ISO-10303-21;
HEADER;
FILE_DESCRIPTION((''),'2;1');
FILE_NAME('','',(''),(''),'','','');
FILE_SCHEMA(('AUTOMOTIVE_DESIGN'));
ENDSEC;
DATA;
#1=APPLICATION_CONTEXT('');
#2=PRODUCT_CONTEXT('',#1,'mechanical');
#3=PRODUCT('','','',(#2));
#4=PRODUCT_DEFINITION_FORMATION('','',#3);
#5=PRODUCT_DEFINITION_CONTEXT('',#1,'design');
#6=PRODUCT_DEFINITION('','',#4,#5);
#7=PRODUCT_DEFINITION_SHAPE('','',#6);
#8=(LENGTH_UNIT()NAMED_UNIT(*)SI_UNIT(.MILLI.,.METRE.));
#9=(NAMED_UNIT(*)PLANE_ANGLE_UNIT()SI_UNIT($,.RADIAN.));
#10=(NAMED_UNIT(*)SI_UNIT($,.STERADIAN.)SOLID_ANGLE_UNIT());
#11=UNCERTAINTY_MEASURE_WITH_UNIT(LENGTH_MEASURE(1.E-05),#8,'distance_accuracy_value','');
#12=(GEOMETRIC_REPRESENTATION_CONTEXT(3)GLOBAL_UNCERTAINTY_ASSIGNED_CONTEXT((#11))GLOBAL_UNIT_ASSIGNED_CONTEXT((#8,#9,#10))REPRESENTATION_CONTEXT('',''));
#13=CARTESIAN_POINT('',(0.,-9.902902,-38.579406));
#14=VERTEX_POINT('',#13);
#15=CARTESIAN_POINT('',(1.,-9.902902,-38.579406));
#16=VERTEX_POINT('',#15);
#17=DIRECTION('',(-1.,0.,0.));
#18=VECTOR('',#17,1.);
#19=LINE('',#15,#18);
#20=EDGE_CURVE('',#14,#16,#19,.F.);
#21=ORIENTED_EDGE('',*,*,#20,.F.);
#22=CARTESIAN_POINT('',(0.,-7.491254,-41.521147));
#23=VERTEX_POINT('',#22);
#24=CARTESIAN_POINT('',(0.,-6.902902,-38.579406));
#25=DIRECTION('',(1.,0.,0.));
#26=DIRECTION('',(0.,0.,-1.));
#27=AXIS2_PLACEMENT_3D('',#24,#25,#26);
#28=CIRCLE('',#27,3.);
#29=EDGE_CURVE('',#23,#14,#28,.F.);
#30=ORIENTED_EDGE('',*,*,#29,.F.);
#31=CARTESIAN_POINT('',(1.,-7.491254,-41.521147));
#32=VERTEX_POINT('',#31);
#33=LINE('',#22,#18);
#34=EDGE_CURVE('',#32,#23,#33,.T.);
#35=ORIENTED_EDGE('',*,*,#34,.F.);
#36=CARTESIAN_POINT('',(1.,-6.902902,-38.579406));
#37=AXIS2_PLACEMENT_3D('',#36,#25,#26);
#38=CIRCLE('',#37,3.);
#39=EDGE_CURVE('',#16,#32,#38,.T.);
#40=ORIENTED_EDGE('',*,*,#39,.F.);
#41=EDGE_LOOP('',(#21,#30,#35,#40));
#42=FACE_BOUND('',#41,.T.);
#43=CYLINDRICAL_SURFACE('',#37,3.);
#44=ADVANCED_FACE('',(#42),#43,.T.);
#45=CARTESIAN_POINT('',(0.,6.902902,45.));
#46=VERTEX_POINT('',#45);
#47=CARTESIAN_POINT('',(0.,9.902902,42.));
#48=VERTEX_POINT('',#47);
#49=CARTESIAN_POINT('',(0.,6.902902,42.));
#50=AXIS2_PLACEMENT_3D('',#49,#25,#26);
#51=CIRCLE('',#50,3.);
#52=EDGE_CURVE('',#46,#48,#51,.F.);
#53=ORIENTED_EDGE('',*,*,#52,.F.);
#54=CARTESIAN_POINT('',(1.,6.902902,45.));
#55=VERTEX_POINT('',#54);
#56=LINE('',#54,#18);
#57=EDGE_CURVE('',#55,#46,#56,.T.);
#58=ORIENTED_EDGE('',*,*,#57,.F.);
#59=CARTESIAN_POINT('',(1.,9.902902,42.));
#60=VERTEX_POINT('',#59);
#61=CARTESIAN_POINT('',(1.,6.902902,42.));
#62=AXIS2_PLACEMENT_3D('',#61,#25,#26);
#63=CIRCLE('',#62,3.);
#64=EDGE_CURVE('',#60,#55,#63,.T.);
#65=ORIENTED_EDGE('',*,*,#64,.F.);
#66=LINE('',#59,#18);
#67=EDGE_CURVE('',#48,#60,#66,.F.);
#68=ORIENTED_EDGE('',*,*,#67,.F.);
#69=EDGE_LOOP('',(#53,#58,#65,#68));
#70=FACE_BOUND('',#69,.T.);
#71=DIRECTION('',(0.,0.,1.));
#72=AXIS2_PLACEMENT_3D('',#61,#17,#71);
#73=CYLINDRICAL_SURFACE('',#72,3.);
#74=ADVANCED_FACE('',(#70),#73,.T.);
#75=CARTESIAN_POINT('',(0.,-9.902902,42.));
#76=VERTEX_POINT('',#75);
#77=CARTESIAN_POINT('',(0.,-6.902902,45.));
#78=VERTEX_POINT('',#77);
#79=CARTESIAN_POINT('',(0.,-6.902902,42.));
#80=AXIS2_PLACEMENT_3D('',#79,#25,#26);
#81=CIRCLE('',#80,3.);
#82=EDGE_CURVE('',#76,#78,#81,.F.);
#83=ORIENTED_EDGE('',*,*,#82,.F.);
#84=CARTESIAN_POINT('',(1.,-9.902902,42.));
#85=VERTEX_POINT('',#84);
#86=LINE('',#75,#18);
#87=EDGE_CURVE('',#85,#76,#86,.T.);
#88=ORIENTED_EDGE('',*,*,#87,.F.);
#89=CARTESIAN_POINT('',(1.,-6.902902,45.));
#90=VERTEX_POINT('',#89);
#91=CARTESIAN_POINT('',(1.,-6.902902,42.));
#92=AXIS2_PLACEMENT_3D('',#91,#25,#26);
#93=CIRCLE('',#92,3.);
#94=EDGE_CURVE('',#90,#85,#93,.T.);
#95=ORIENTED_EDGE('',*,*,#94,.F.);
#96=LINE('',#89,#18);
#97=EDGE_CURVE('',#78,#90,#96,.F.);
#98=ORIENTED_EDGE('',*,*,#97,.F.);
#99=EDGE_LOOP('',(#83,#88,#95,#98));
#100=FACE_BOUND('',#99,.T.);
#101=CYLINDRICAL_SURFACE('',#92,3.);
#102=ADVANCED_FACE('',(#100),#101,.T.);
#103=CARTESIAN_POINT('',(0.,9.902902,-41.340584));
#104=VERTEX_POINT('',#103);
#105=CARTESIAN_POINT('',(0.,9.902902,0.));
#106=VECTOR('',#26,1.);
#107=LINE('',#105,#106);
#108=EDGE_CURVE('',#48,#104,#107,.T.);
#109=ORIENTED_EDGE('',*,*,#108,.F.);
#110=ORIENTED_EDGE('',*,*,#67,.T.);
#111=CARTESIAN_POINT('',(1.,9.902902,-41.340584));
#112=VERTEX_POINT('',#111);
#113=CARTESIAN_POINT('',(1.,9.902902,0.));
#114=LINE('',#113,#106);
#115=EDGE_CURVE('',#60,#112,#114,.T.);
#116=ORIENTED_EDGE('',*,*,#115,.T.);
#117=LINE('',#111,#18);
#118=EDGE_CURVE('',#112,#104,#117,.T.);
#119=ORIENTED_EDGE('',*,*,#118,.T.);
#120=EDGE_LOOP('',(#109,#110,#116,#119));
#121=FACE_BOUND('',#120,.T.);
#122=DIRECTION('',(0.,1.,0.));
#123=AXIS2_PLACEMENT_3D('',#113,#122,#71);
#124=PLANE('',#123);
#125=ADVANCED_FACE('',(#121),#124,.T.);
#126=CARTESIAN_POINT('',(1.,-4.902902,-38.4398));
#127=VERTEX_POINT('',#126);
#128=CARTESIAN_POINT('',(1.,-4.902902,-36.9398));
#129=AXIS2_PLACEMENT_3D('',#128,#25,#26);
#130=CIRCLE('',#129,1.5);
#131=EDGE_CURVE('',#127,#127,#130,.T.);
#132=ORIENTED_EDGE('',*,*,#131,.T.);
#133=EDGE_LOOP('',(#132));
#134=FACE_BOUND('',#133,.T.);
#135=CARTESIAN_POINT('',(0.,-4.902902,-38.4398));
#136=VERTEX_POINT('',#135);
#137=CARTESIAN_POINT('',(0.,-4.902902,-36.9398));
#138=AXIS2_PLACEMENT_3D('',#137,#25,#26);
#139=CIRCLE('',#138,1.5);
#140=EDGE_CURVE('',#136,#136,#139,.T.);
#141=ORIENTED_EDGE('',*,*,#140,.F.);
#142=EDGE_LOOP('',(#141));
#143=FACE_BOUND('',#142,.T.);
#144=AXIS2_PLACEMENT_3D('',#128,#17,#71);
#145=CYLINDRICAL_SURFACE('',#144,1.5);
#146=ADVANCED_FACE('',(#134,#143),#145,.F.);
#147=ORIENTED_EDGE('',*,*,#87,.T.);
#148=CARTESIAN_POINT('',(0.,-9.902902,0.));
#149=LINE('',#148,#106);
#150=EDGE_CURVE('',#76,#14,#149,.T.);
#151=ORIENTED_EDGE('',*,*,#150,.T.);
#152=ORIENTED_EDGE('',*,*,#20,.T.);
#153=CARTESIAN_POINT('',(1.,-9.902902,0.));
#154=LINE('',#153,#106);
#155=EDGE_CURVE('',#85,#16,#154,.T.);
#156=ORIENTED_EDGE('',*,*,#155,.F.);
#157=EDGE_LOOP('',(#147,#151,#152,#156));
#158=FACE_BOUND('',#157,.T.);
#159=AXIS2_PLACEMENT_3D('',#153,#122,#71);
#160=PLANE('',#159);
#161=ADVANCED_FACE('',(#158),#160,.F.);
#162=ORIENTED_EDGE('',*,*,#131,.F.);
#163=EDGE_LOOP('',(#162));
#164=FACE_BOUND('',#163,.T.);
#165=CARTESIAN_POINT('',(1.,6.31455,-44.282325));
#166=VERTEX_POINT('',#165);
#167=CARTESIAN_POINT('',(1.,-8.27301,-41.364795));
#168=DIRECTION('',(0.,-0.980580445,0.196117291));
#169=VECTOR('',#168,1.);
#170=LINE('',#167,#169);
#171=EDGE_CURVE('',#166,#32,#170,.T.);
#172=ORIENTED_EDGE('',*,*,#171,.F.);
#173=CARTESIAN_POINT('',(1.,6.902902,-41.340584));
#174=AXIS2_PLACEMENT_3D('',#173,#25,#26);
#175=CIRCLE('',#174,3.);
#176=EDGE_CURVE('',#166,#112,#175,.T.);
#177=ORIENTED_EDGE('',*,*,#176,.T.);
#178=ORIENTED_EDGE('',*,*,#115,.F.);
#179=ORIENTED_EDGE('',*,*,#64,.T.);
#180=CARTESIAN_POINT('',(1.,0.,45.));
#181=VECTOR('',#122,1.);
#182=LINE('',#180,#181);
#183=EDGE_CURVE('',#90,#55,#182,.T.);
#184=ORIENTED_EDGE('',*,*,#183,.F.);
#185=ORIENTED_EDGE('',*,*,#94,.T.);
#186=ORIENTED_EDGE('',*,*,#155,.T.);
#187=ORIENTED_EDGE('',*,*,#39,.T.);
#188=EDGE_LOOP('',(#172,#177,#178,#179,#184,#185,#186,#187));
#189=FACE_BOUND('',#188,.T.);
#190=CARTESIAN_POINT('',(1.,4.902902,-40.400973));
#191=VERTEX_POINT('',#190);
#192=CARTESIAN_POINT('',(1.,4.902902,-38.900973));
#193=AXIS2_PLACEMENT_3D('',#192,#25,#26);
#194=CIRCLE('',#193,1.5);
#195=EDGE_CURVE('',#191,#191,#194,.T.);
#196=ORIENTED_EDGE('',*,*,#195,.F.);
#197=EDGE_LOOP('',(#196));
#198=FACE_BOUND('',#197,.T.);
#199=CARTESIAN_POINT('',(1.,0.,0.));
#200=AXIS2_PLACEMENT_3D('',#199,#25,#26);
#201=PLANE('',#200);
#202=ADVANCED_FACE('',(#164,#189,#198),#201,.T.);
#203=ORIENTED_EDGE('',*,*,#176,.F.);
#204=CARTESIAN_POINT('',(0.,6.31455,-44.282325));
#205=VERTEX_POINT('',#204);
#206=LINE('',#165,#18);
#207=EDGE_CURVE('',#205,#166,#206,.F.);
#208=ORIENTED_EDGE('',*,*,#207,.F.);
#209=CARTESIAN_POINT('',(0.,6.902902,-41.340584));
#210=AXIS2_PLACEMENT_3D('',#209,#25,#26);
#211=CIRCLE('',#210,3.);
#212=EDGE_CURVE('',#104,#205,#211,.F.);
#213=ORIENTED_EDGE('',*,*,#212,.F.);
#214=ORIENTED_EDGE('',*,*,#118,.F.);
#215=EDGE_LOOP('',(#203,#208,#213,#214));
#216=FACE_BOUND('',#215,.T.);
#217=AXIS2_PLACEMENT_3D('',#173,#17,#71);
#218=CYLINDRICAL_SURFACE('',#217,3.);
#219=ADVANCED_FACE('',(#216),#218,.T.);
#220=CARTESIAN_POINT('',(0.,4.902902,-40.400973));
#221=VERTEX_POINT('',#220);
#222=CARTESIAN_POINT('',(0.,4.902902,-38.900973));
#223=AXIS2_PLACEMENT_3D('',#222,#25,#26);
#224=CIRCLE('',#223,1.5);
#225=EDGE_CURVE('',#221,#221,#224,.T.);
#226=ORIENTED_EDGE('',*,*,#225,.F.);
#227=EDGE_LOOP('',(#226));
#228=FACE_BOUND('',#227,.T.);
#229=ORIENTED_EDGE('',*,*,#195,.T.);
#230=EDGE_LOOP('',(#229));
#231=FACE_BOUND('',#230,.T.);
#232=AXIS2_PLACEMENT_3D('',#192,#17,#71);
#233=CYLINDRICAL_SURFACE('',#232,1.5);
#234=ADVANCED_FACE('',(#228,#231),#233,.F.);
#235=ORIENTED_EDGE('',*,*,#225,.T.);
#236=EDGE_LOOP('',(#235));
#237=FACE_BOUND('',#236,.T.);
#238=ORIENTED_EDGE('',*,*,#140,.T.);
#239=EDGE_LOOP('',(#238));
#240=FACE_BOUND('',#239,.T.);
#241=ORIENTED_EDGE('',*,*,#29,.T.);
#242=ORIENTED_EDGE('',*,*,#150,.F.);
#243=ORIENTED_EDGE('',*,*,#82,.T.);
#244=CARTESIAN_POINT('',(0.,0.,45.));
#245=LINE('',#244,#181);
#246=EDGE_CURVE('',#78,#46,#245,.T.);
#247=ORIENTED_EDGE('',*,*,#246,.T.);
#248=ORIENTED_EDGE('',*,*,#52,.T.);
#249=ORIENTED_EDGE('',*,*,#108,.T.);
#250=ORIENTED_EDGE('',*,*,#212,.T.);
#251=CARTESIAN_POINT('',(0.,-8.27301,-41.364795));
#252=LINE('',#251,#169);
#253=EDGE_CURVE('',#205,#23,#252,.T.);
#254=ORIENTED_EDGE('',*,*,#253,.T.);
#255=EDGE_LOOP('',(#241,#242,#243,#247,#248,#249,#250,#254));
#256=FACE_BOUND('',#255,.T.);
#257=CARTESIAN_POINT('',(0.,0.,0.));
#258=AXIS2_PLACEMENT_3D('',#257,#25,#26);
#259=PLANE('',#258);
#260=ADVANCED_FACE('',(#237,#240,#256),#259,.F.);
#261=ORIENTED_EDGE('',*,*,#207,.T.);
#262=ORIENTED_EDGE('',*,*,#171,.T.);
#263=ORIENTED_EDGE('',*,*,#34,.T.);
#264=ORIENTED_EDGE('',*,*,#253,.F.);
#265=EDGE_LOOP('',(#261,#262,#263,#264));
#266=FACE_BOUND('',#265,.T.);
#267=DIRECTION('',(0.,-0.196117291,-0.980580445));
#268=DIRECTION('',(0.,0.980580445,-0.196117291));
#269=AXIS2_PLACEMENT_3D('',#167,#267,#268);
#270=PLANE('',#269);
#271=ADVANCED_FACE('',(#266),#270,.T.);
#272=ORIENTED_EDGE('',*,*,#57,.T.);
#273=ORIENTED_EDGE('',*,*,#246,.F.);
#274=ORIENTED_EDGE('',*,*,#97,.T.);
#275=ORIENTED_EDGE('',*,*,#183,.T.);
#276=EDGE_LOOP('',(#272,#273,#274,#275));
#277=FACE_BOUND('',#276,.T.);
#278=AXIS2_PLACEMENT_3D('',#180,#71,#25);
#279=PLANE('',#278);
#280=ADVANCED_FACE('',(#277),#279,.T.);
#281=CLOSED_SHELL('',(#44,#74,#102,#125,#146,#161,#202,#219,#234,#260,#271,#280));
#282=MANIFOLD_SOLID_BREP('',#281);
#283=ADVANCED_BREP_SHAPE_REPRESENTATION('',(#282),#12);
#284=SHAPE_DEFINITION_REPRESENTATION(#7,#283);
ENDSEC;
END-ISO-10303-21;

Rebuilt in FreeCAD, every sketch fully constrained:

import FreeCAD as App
import Part
import Sketcher
Q = App.Units.Quantity


def edges_at(feature, points):
    """Names of the edges that pass closest to the given points."""
    edges = feature.Shape.Edges
    near = lambda p: min(range(len(edges)), key=lambda i: edges[i].distToShape(Part.Vertex(*p))[0])
    return sorted({f"Edge{near(p) + 1}" for p in points})


def add_polygon(sketch, points):
    """Adds a closed chain of lines whose ends are joined by coincident constraints."""
    first, n = sketch.GeometryCount, len(points)
    for a, b in zip(points, points[1:] + points[:1]):
        sketch.addGeometry(Part.LineSegment(App.Vector(*a, 0), App.Vector(*b, 0)), False)
    for i in range(n):
        sketch.addConstraint(Sketcher.Constraint("Coincident", first + i, 2, first + (i + 1) % n, 1))

doc = App.newDocument("Part")
body = doc.addObject("PartDesign::Body", "Body")

# Sketch on YZ plane
sketch1 = body.newObject("Sketcher::SketchObject", "Sketch")
sketch1.AttachmentSupport = (doc.getObject("YZ_Plane"), [""])
sketch1.MapMode = "FlatFace"
add_polygon(sketch1, [(9.9, 45), (-9.9, 45), (-9.9, -41), (9.9, -45)])  # lines 0-3
sketch1.addGeometry(Part.Circle(App.Vector(-4.9, -36.9, 0), App.Vector(0, 0, 1), 1.5), False)  # 4
sketch1.addGeometry(Part.Circle(App.Vector(4.9, -38.9, 0), App.Vector(0, 0, 1), 1.5), False)  # 5
sketch1.addConstraint(Sketcher.Constraint("Horizontal", 0))
sketch1.addConstraint(Sketcher.Constraint("Vertical", 1))
sketch1.addConstraint(Sketcher.Constraint("Vertical", 3))
sketch1.addConstraint(Sketcher.Constraint("Equal", 4, 5))
sketch1.addConstraint(Sketcher.Constraint("Symmetric", 0, 2, 2, 2, -1, 1))
sketch1.addConstraint(Sketcher.Constraint("Diameter", 4, Q("3 mm")))
sketch1.addConstraint(Sketcher.Constraint("DistanceY", 3, 1, 3, 2, Q("90 mm")))
sketch1.addConstraint(Sketcher.Constraint("DistanceX", 0, 2, 4, 3, Q("5 mm")))
sketch1.addConstraint(Sketcher.Constraint("DistanceX", 5, 3, 2, 2, Q("5 mm")))
sketch1.addConstraint(Sketcher.Constraint("Angle", 2, Q("-11.31 deg")))
sketch1.addConstraint(Sketcher.Constraint("DistanceY", 4, 3, -1, 1, Q("36.9398 mm")))
sketch1.addConstraint(Sketcher.Constraint("Distance", 2, Q("20.198041 mm")))
sketch1.addConstraint(Sketcher.Constraint("DistanceY", 1, 2, 5, 3, Q("2.137842 mm")))
pad1 = body.newObject("PartDesign::Pad", "Pad")
pad1.Profile = sketch1
pad1.Length = 1
doc.recompute()

fillet = body.newObject("PartDesign::Fillet", "Fillet")
fillet.Base = (pad1, edges_at(pad1, [
    (0.5, -9.903, -41.039),
    (0.5, -9.903, 45),
    (0.5, 9.903, 45),
    (0.5, 9.903, -45),
]))
fillet.Radius = 3

doc.recompute()
